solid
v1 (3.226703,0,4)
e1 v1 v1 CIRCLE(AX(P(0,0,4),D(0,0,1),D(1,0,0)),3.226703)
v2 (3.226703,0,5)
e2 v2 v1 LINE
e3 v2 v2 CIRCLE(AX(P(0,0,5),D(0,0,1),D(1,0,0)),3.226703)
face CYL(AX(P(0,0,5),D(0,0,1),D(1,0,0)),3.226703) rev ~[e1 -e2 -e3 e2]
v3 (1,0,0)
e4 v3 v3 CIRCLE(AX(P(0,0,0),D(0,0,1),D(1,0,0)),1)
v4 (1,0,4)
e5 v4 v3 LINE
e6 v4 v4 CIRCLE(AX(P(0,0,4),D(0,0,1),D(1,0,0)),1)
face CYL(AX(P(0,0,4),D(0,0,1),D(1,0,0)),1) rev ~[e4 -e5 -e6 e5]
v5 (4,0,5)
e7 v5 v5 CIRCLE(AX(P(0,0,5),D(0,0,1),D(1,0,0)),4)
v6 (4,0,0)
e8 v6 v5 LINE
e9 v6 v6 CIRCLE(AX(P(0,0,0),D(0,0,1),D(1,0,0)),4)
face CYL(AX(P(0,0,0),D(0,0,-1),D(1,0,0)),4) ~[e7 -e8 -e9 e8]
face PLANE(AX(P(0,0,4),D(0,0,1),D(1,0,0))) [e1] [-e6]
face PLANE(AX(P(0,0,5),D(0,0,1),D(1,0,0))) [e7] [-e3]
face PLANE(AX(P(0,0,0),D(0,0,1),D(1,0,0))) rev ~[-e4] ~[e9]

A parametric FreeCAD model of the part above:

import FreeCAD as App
import Part
import Sketcher

doc = App.newDocument("Part")
body = doc.addObject("PartDesign::Body", "Body")

sketch1 = body.newObject("Sketcher::SketchObject", "Sketch")
sketch1.AttachmentSupport = (doc.getObject("XY_Plane"), [""])
sketch1.MapMode = "FlatFace"
sketch1.addGeometry(Part.Circle(App.Vector(0, 0, 0), App.Vector(0, 0, 1), 4), False)
sketch1.addConstraint([
    Sketcher.Constraint("Coincident", 0, 3, -1, 1),
    Sketcher.Constraint("Diameter", 0, 8.0),
])
pad1 = body.newObject("PartDesign::Pad", "Pad")
pad1.Profile = sketch1
pad1.Length = 5

sketch2 = body.newObject("Sketcher::SketchObject", "Sketch001")
sketch2.AttachmentSupport = (doc.getObject("XY_Plane"), [""])
sketch2.MapMode = "FlatFace"
sketch2.AttachmentOffset = App.Placement(App.Vector(0, 0, 5), App.Rotation())
sketch2.addGeometry(Part.Circle(App.Vector(0, 0, 0), App.Vector(0, 0, 1), 3.2), False)
sketch2.addConstraint([
    Sketcher.Constraint("Coincident", 0, 3, -1, 1),
    Sketcher.Constraint("Diameter", 0, 6.453406),
])
pocket1 = body.newObject("PartDesign::Pocket", "Pocket")
pocket1.Profile = sketch2
pocket1.Length = 1

sketch3 = body.newObject("Sketcher::SketchObject", "Sketch002")
sketch3.AttachmentSupport = (doc.getObject("XY_Plane"), [""])
sketch3.MapMode = "FlatFace"
sketch3.AttachmentOffset = App.Placement(App.Vector(0, 0, 4), App.Rotation())
sketch3.addGeometry(Part.Circle(App.Vector(0, 0, 0), App.Vector(0, 0, 1), 1), False)
sketch3.addConstraint([
    Sketcher.Constraint("Coincident", 0, 3, -1, 1),
    Sketcher.Constraint("Diameter", 0, 2.0),
])
pocket2 = body.newObject("PartDesign::Pocket", "Pocket001")
pocket2.Profile = sketch3
pocket2.Type = "ThroughAll"

doc.recompute()
